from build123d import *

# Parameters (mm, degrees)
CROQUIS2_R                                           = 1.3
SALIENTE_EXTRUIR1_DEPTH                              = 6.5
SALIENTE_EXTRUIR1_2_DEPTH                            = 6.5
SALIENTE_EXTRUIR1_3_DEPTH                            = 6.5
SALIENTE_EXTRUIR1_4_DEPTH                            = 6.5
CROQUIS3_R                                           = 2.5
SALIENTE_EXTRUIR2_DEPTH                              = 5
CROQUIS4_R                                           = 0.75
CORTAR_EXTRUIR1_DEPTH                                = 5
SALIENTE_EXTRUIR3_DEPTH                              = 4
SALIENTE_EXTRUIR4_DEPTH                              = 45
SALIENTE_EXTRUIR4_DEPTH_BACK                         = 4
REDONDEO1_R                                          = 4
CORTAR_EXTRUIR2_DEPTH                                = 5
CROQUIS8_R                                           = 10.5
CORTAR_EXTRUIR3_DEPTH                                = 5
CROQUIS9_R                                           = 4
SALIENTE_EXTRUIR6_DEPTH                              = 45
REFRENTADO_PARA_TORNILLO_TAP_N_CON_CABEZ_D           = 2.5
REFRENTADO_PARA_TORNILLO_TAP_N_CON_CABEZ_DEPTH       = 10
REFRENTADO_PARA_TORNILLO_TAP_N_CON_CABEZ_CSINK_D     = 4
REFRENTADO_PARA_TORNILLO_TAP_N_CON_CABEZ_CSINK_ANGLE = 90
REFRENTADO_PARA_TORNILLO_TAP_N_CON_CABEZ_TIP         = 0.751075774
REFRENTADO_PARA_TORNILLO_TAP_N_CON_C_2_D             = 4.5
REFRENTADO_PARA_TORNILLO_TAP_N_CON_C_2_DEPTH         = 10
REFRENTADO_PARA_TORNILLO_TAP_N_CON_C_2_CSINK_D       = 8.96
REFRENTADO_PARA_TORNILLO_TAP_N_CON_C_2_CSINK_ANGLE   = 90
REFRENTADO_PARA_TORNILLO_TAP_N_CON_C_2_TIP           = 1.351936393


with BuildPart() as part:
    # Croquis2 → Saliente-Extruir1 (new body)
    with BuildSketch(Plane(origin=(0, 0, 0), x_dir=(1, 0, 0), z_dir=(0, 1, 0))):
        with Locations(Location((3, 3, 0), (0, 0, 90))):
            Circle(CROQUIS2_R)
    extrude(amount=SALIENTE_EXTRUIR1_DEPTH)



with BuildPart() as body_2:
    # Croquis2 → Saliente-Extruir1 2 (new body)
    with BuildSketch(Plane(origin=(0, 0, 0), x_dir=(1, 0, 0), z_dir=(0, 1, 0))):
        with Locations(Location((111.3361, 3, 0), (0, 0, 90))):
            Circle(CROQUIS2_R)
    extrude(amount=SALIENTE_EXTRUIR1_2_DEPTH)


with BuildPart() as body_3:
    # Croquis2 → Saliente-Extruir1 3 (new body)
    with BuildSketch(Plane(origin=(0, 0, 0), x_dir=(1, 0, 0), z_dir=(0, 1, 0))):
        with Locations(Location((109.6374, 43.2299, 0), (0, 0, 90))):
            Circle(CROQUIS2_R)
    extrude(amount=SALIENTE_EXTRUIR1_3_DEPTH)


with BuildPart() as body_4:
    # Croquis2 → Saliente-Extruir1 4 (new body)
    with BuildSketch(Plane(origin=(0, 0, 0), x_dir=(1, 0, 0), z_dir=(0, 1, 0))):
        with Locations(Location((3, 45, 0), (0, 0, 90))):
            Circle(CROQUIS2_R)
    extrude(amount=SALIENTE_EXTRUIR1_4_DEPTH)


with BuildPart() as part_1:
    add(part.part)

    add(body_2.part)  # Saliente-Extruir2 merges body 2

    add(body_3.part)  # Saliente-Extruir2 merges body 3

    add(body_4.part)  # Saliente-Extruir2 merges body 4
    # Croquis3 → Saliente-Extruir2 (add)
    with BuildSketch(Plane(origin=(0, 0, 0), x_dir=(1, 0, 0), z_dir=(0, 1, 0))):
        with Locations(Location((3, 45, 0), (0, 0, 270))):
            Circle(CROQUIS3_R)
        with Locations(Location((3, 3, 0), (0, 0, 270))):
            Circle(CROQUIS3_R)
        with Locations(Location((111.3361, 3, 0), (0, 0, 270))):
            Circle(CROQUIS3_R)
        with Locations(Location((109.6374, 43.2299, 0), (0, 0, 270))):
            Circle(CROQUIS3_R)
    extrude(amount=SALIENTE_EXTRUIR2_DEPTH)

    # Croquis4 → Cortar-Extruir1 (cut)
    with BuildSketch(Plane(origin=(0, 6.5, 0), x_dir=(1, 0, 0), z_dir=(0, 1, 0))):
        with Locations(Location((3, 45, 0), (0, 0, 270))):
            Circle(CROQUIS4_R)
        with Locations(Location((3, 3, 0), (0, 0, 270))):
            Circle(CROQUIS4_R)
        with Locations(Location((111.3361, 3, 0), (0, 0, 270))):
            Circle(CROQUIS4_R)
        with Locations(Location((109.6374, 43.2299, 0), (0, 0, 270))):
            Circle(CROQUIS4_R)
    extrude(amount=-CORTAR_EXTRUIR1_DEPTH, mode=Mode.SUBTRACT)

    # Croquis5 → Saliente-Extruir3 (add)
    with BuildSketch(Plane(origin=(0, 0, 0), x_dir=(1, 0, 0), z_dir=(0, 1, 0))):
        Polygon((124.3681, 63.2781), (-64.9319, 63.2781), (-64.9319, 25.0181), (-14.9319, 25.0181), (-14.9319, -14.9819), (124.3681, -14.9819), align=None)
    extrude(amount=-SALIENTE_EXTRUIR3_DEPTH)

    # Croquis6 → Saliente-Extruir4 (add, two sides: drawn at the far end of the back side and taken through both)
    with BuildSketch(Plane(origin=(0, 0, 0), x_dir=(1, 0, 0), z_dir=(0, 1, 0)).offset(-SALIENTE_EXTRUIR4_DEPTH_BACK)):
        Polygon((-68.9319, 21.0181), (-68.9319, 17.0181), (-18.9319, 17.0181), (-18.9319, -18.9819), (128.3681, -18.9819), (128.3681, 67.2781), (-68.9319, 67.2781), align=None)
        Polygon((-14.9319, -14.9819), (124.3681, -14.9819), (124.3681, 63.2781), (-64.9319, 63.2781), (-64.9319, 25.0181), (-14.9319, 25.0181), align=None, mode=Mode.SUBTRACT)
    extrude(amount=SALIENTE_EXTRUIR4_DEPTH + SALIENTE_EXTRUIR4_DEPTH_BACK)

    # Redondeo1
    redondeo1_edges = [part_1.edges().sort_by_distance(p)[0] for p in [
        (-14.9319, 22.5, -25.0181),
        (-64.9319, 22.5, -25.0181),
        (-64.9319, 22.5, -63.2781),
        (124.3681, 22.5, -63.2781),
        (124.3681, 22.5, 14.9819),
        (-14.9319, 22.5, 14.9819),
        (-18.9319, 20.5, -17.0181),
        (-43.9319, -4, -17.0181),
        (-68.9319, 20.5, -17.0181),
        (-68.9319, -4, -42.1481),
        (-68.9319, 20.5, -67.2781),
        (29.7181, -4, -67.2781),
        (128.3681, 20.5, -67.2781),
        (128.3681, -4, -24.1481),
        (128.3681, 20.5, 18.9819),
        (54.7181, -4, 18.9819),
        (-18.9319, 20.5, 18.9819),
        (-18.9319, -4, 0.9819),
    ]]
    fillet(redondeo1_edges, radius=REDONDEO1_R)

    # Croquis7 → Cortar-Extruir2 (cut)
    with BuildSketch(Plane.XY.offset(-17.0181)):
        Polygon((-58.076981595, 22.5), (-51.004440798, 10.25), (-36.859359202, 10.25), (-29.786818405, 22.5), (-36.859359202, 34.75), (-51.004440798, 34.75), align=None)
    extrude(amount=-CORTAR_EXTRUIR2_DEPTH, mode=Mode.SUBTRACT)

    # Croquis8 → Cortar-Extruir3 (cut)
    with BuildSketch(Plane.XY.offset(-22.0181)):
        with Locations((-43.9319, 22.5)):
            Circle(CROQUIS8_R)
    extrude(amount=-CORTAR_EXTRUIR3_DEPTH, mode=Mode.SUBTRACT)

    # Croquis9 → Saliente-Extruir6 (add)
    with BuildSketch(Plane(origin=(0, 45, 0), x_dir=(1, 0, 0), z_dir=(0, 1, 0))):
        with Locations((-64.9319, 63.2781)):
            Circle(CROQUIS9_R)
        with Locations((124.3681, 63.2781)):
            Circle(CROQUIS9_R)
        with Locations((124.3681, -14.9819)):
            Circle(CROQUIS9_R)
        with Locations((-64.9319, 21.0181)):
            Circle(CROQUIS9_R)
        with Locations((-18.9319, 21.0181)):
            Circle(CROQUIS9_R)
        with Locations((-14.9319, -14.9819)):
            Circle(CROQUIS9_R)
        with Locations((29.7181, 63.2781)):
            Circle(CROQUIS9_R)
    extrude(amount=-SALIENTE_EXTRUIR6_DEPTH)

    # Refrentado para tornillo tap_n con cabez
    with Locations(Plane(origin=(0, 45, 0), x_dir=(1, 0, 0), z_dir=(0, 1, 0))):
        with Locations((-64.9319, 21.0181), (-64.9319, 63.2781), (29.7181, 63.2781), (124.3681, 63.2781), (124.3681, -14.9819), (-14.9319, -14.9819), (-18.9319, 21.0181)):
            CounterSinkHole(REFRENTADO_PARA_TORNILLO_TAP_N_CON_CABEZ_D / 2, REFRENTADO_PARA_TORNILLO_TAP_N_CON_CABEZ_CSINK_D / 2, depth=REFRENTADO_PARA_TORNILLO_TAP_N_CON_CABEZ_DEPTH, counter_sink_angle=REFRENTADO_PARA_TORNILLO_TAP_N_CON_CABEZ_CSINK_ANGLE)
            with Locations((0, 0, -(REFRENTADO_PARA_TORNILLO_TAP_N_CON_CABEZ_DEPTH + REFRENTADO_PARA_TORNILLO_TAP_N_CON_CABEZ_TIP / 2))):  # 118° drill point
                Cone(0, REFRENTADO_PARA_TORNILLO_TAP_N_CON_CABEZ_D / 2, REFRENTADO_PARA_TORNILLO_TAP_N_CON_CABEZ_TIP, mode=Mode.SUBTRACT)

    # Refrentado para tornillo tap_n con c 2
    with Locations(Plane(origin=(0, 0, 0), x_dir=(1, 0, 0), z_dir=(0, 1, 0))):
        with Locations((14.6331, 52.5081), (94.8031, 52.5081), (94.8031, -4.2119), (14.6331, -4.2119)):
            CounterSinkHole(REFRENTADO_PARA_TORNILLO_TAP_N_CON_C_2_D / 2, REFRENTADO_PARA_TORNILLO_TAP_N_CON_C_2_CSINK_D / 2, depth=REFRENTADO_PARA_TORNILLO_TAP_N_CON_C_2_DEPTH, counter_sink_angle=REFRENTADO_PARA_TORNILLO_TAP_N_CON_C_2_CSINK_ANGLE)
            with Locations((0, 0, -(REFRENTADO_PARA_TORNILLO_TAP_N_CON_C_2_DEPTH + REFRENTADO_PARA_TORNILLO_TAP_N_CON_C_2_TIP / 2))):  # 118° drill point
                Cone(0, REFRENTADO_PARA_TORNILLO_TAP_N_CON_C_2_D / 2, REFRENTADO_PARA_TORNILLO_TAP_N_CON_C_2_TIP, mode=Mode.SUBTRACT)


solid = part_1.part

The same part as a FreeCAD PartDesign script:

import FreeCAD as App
import Part
import Sketcher

V = App.Vector
Q = App.Units.Quantity


def edges_at(feature, points):
    """Names of the edges that pass closest to the given points."""
    edges = feature.Shape.Edges
    near = lambda p: min(range(len(edges)), key=lambda i: edges[i].distToShape(Part.Vertex(*p))[0])
    return sorted({f"Edge{near(p) + 1}" for p in points})


def add_polygon(sketch, points):
    """Adds a closed chain of lines whose ends are joined by coincident constraints."""
    first, n = sketch.GeometryCount, len(points)
    for a, b in zip(points, points[1:] + points[:1]):
        sketch.addGeometry(Part.LineSegment(App.Vector(*a, 0), App.Vector(*b, 0)), False)
    for i in range(n):
        sketch.addConstraint(Sketcher.Constraint("Coincident", first + i, 2, first + (i + 1) % n, 1))

doc = App.newDocument("Part")
body = doc.addObject("PartDesign::Body", "Body")

sketch1 = body.newObject("Sketcher::SketchObject", "Sketch")
sketch1.AttachmentSupport = (doc.getObject("XZ_Plane"), [""])
sketch1.MapMode = "FlatFace"
sketch1.addGeometry(Part.Circle(V(3, -3, 0), V(0, 0, 1), 1.3), False)
sketch1.addConstraint([
    Sketcher.Constraint("Diameter", 0, 2.6),
    Sketcher.Constraint("DistanceX", -1, 1, 0, 3, 3.0),
    Sketcher.Constraint("DistanceY", 0, 3, -1, 1, 3.0),
])
pad1 = body.newObject("PartDesign::Pad", "Pad")
pad1.Profile = sketch1
pad1.Length = 6.5
pad1.Reversed = True
body2 = doc.addObject("PartDesign::Body", "Body001")

sketch2 = body2.newObject("Sketcher::SketchObject", "Sketch001")
sketch2.AttachmentSupport = (doc.getObject("XZ_Plane001"), [""])
sketch2.MapMode = "FlatFace"
sketch2.addGeometry(Part.Circle(V(111.3361, -3, 0), V(0, 0, 1), 1.3), False)
sketch2.addConstraint([
    Sketcher.Constraint("Diameter", 0, 2.6),
    Sketcher.Constraint("DistanceY", 0, 3, -1, 1, 3.0),
    Sketcher.Constraint("DistanceX", -1, 1, 0, 3, 111.3361),
])
pad2 = body2.newObject("PartDesign::Pad", "Pad001")
pad2.Profile = sketch2
pad2.Length = 6.5
pad2.Reversed = True
body3 = doc.addObject("PartDesign::Body", "Body002")

sketch3 = body3.newObject("Sketcher::SketchObject", "Sketch002")
sketch3.AttachmentSupport = (doc.getObject("XZ_Plane002"), [""])
sketch3.MapMode = "FlatFace"
sketch3.addGeometry(Part.Circle(V(109.6374, -43.2299, 0), V(0, 0, 1), 1.3), False)
sketch3.addConstraint([
    Sketcher.Constraint("Diameter", 0, 2.6),
    Sketcher.Constraint("DistanceX", -1, 1, 0, 3, 109.6374),
    Sketcher.Constraint("DistanceY", 0, 3, -1, 1, 43.2299),
])
pad3 = body3.newObject("PartDesign::Pad", "Pad002")
pad3.Profile = sketch3
pad3.Length = 6.5
pad3.Reversed = True
body4 = doc.addObject("PartDesign::Body", "Body003")

sketch4 = body4.newObject("Sketcher::SketchObject", "Sketch003")
sketch4.AttachmentSupport = (doc.getObject("XZ_Plane003"), [""])
sketch4.MapMode = "FlatFace"
sketch4.addGeometry(Part.Circle(V(3, -45, 0), V(0, 0, 1), 1.3), False)
sketch4.addConstraint([
    Sketcher.Constraint("Diameter", 0, 2.6),
    Sketcher.Constraint("DistanceX", -1, 1, 0, 3, 3.0),
    Sketcher.Constraint("DistanceY", 0, 3, -1, 1, 45.0),
])
pad4 = body4.newObject("PartDesign::Pad", "Pad003")
pad4.Profile = sketch4
pad4.Length = 6.5
pad4.Reversed = True
body.AllowCompound = True
doc.recompute()

boolean = body.newObject("PartDesign::Boolean", "Boolean")
boolean.Type = "Fuse"
boolean.addObjects([body2])
doc.recompute()

boolean2 = body.newObject("PartDesign::Boolean", "Boolean001")
boolean2.Type = "Fuse"
boolean2.addObjects([body3])
doc.recompute()

boolean3 = body.newObject("PartDesign::Boolean", "Boolean002")
boolean3.Type = "Fuse"
boolean3.addObjects([body4])

sketch5 = body.newObject("Sketcher::SketchObject", "Sketch004")
sketch5.AttachmentSupport = (doc.getObject("XZ_Plane"), [""])
sketch5.MapMode = "FlatFace"
sketch5.addGeometry([
    Part.Circle(V(3, -45, 0), V(0, 0, 1), 2.5),
    Part.Circle(V(3, -3, 0), V(0, 0, 1), 2.5),
    Part.Circle(V(111.3361, -3, 0), V(0, 0, 1), 2.5),
    Part.Circle(V(109.6374, -43.2299, 0), V(0, 0, 1), 2.5),
], False)
sketch5.addConstraint([
    Sketcher.Constraint("Equal", 0, 1),
    Sketcher.Constraint("Equal", 1, 2),
    Sketcher.Constraint("Equal", 2, 3),
    Sketcher.Constraint("Horizontal", 1, 3, 2, 3),
    Sketcher.Constraint("Vertical", 0, 3, 1, 3),
    Sketcher.Constraint("Diameter", 0, 5.0),
    Sketcher.Constraint("DistanceX", -1, 1, 0, 3, 3.0),
    Sketcher.Constraint("DistanceY", 0, 3, -1, 1, 45.0),
    Sketcher.Constraint("DistanceY", 1, 3, -1, 1, 3.0),
    Sketcher.Constraint("DistanceX", -1, 1, 2, 3, 111.3361),
    Sketcher.Constraint("DistanceX", -1, 1, 3, 3, 109.6374),
    Sketcher.Constraint("DistanceY", 3, 3, -1, 1, 43.2299),
])
pad5 = body.newObject("PartDesign::Pad", "Pad004")
pad5.Profile = sketch5
pad5.Length = 5
pad5.Reversed = True

sketch6 = body.newObject("Sketcher::SketchObject", "Sketch005")
sketch6.AttachmentSupport = (doc.getObject("XZ_Plane"), [""])
sketch6.MapMode = "FlatFace"
sketch6.AttachmentOffset = App.Placement(V(0, 0, -6.5), App.Rotation())
sketch6.addGeometry([
    Part.Circle(V(3, -45, 0), V(0, 0, 1), 0.75),
    Part.Circle(V(3, -3, 0), V(0, 0, 1), 0.75),
    Part.Circle(V(111.3361, -3, 0), V(0, 0, 1), 0.75),
    Part.Circle(V(109.6374, -43.2299, 0), V(0, 0, 1), 0.75),
], False)
sketch6.addConstraint([
    Sketcher.Constraint("Equal", 0, 1),
    Sketcher.Constraint("Equal", 1, 2),
    Sketcher.Constraint("Equal", 2, 3),
    Sketcher.Constraint("Horizontal", 1, 3, 2, 3),
    Sketcher.Constraint("Vertical", 0, 3, 1, 3),
    Sketcher.Constraint("Diameter", 0, 1.5),
    Sketcher.Constraint("DistanceX", -1, 1, 0, 3, 3.0),
    Sketcher.Constraint("DistanceY", 0, 3, -1, 1, 45.0),
    Sketcher.Constraint("DistanceY", 1, 3, -1, 1, 3.0),
    Sketcher.Constraint("DistanceX", -1, 1, 2, 3, 111.3361),
    Sketcher.Constraint("DistanceX", -1, 1, 3, 3, 109.6374),
    Sketcher.Constraint("DistanceY", 3, 3, -1, 1, 43.2299),
])
pocket1 = body.newObject("PartDesign::Pocket", "Pocket")
pocket1.Profile = sketch6
pocket1.Length = 5
pocket1.Reversed = True

sketch7 = body.newObject("Sketcher::SketchObject", "Sketch006")
sketch7.AttachmentSupport = (doc.getObject("XZ_Plane"), [""])
sketch7.MapMode = "FlatFace"
add_polygon(sketch7, [(124.3681, -63.2781), (-64.9319, -63.2781), (-64.9319, -25.0181), (-14.9319, -25.0181), (-14.9319, 14.9819), (124.3681, 14.9819)])
sketch7.addConstraint([
    Sketcher.Constraint("Horizontal", 0),
    Sketcher.Constraint("Vertical", 1),
    Sketcher.Constraint("Horizontal", 2),
    Sketcher.Constraint("Vertical", 3),
    Sketcher.Constraint("Horizontal", 4),
    Sketcher.Constraint("Vertical", 5),
    Sketcher.Constraint("DistanceX", 2, 1, 2, 2, 50.0),
    Sketcher.Constraint("DistanceY", 3, 1, 3, 2, 40.0),
    Sketcher.Constraint("DistanceX", 0, 2, 0, 1, 189.3),
    Sketcher.Constraint("DistanceY", 1, 1, 1, 2, 38.26),
    Sketcher.Constraint("DistanceX", 0, 2, -1, 1, 64.9319),
    Sketcher.Constraint("DistanceY", 0, 2, -1, 1, 63.2781),
])
pad6 = body.newObject("PartDesign::Pad", "Pad005")
pad6.Profile = sketch7
pad6.Length = 4

sketch8 = body.newObject("Sketcher::SketchObject", "Sketch007")
sketch8.AttachmentSupport = (doc.getObject("XZ_Plane"), [""])
sketch8.MapMode = "FlatFace"
add_polygon(sketch8, [(-68.9319, -17.0181), (-18.9319, -17.0181), (-18.9319, 18.9819), (128.3681, 18.9819), (128.3681, -67.2781), (-68.9319, -67.2781)])
add_polygon(sketch8, [(124.3681, 14.9819), (-14.9319, 14.9819), (-14.9319, -25.0181), (-64.9319, -25.0181), (-64.9319, -63.2781), (124.3681, -63.2781)])
sketch8.addConstraint([
    Sketcher.Constraint("Horizontal", 0),
    Sketcher.Constraint("Vertical", 1),
    Sketcher.Constraint("Horizontal", 2),
    Sketcher.Constraint("Vertical", 3),
    Sketcher.Constraint("Horizontal", 4),
    Sketcher.Constraint("Vertical", 5),
    Sketcher.Constraint("Horizontal", 6),
    Sketcher.Constraint("Vertical", 7),
    Sketcher.Constraint("Horizontal", 8),
    Sketcher.Constraint("Vertical", 9),
    Sketcher.Constraint("Horizontal", 10),
    Sketcher.Constraint("Vertical", 11),
    Sketcher.Constraint("Equal", 0, 8),
    Sketcher.Constraint("DistanceX", 0, 1, 0, 2, 50.0),
    Sketcher.Constraint("DistanceY", 1, 1, 1, 2, 36.0),
    Sketcher.Constraint("DistanceY", 7, 2, 7, 1, 40.0),
    Sketcher.Constraint("DistanceX", 2, 1, 2, 2, 147.3),
    Sketcher.Constraint("DistanceX", 6, 2, 6, 1, 139.3),
    Sketcher.Constraint("DistanceX", 1, 2, 6, 2, 4.0),
    Sketcher.Constraint("DistanceY", 6, 2, 1, 2, 4.0),
    Sketcher.Constraint("DistanceY", 4, 2, 9, 2, 4.0),
    Sketcher.Constraint("DistanceY", 3, 2, 3, 1, 86.26),
    Sketcher.Constraint("DistanceX", 0, 2, -1, 1, 18.9319),
    Sketcher.Constraint("DistanceY", 0, 2, -1, 1, 17.0181),
])
pad7 = body.newObject("PartDesign::Pad", "Pad006")
pad7.Profile = sketch8
pad7.Type = "TwoLengths"
pad7.Length = 45
pad7.Length2 = 4
pad7.Reversed = True
doc.recompute()

fillet = body.newObject("PartDesign::Fillet", "Fillet")
fillet.Base = (pad7, edges_at(pad7, [
    (-14.932, 22.5, -25.018),
    (-64.932, 22.5, -25.018),
    (-64.932, 22.5, -63.278),
    (124.368, 22.5, -63.278),
    (124.368, 22.5, 14.982),
    (-14.932, 22.5, 14.982),
    (-18.932, 20.5, -17.018),
    (-43.932, -4, -17.018),
    (-68.932, 20.5, -17.018),
    (-68.932, -4, -42.148),
    (-68.932, 20.5, -67.278),
    (29.718, -4, -67.278),
    (128.368, 20.5, -67.278),
    (128.368, -4, -24.148),
    (128.368, 20.5, 18.982),
    (54.718, -4, 18.982),
    (-18.932, 20.5, 18.982),
    (-18.932, -4, 0.982),
]))
fillet.Radius = 4

sketch9 = body.newObject("Sketcher::SketchObject", "Sketch008")
sketch9.AttachmentSupport = (doc.getObject("XY_Plane"), [""])
sketch9.MapMode = "FlatFace"
sketch9.AttachmentOffset = App.Placement(V(0, 0, -17.0181), App.Rotation())
add_polygon(sketch9, [(-58.076982, 22.5), (-51.004441, 10.25), (-36.859359, 10.25), (-29.786818, 22.5), (-36.859359, 34.75), (-51.004441, 34.75)])
sketch9.addConstraint([
    Sketcher.Constraint("Horizontal", 1),
    Sketcher.Constraint("Horizontal", 4),
    Sketcher.Constraint("Parallel", 0, 3),
    Sketcher.Constraint("Parallel", 2, 5),
    Sketcher.Constraint("Horizontal", 2, 2, 5, 2),
    Sketcher.Constraint("Vertical", 1, 2, 3, 2),
    Sketcher.Constraint("Vertical", 0, 2, 4, 2),
    Sketcher.Constraint("Angle", 0, Q("-60 deg")),
    Sketcher.Constraint("DistanceY", -1, 1, 2, 2, 22.5),
    Sketcher.Constraint("DistanceY", 1, 2, 3, 2, 24.5),
    Sketcher.Constraint("DistanceX", 1, 1, 1, 2, 14.145082),
    Sketcher.Constraint("DistanceX", 0, 2, -1, 1, 51.004441),
])
pocket2 = body.newObject("PartDesign::Pocket", "Pocket001")
pocket2.Profile = sketch9
pocket2.Length = 5

sketch10 = body.newObject("Sketcher::SketchObject", "Sketch009")
sketch10.AttachmentSupport = (doc.getObject("XY_Plane"), [""])
sketch10.MapMode = "FlatFace"
sketch10.AttachmentOffset = App.Placement(V(0, 0, -22.0181), App.Rotation())
sketch10.addGeometry(Part.Circle(V(-43.9319, 22.5, 0), V(0, 0, 1), 10.5), False)
sketch10.addConstraint([
    Sketcher.Constraint("Diameter", 0, 21.0),
    Sketcher.Constraint("DistanceY", -1, 1, 0, 3, 22.5),
    Sketcher.Constraint("DistanceX", 0, 3, -1, 1, 43.9319),
])
pocket3 = body.newObject("PartDesign::Pocket", "Pocket002")
pocket3.Profile = sketch10
pocket3.Length = 5

sketch11 = body.newObject("Sketcher::SketchObject", "Sketch010")
sketch11.AttachmentSupport = (doc.getObject("XZ_Plane"), [""])
sketch11.MapMode = "FlatFace"
sketch11.AttachmentOffset = App.Placement(V(0, 0, -45), App.Rotation())
sketch11.addGeometry([
    Part.Circle(V(-64.9319, -63.2781, 0), V(0, 0, 1), 4),
    Part.Circle(V(124.3681, -63.2781, 0), V(0, 0, 1), 4),
    Part.Circle(V(124.3681, 14.9819, 0), V(0, 0, 1), 4),
    Part.Circle(V(-64.9319, -21.0181, 0), V(0, 0, 1), 4),
    Part.Circle(V(-18.9319, -21.0181, 0), V(0, 0, 1), 4),
    Part.Circle(V(-14.9319, 14.9819, 0), V(0, 0, 1), 4),
    Part.Circle(V(29.7181, -63.2781, 0), V(0, 0, 1), 4),
], False)
sketch11.addConstraint([
    Sketcher.Constraint("Equal", 0, 1),
    Sketcher.Constraint("Equal", 1, 2),
    Sketcher.Constraint("Equal", 2, 3),
    Sketcher.Constraint("Equal", 3, 4),
    Sketcher.Constraint("Equal", 4, 5),
    Sketcher.Constraint("Equal", 5, 6),
    Sketcher.Constraint("Horizontal", 0, 3, 1, 3),
    Sketcher.Constraint("Horizontal", 3, 3, 4, 3),
    Sketcher.Constraint("Horizontal", 2, 3, 5, 3),
    Sketcher.Constraint("Horizontal", 1, 3, 6, 3),
    Sketcher.Constraint("Vertical", 1, 3, 2, 3),
    Sketcher.Constraint("Vertical", 0, 3, 3, 3),
    Sketcher.Constraint("Diameter", 0, 8.0),
    Sketcher.Constraint("DistanceY", 3, 3, 2, 3, 36.0),
    Sketcher.Constraint("DistanceX", 3, 3, 4, 3, 46.0),
    Sketcher.Constraint("DistanceX", 4, 3, 5, 3, 4.0),
    Sketcher.Constraint("DistanceX", 0, 3, 1, 3, 189.3),
    Sketcher.Constraint("DistanceY", 1, 3, 2, 3, 78.26),
    Sketcher.Constraint("DistanceX", 4, 3, 6, 3, 48.65),
    Sketcher.Constraint("DistanceX", 0, 3, -1, 1, 64.9319),
    Sketcher.Constraint("DistanceY", 0, 3, -1, 1, 63.2781),
])
pad8 = body.newObject("PartDesign::Pad", "Pad007")
pad8.Profile = sketch11
pad8.Length = 45

sketch12 = body.newObject("Sketcher::SketchObject", "Sketch011")
sketch12.AttachmentSupport = (doc.getObject("XZ_Plane"), [""])
sketch12.MapMode = "FlatFace"
sketch12.AttachmentOffset = App.Placement(V(0, 0, -45), App.Rotation())
sketch12.addGeometry([
    Part.Circle(V(-64.9319, -21.0181, 0), V(0, 0, 1), 1.25),
    Part.Circle(V(-64.9319, -63.2781, 0), V(0, 0, 1), 1.25),
    Part.Circle(V(29.7181, -63.2781, 0), V(0, 0, 1), 1.25),
    Part.Circle(V(124.3681, -63.2781, 0), V(0, 0, 1), 1.25),
    Part.Circle(V(124.3681, 14.9819, 0), V(0, 0, 1), 1.25),
    Part.Circle(V(-14.9319, 14.9819, 0), V(0, 0, 1), 1.25),
    Part.Circle(V(-18.9319, -21.0181, 0), V(0, 0, 1), 1.25),
], False)
sketch12.addConstraint([
    Sketcher.Constraint("Equal", 0, 1),
    Sketcher.Constraint("Equal", 1, 2),
    Sketcher.Constraint("Equal", 2, 3),
    Sketcher.Constraint("Equal", 3, 4),
    Sketcher.Constraint("Equal", 4, 5),
    Sketcher.Constraint("Equal", 5, 6),
    Sketcher.Constraint("Horizontal", 1, 3, 2, 3),
    Sketcher.Constraint("Horizontal", 2, 3, 3, 3),
    Sketcher.Constraint("Horizontal", 4, 3, 5, 3),
    Sketcher.Constraint("Horizontal", 0, 3, 6, 3),
    Sketcher.Constraint("Vertical", 0, 3, 1, 3),
    Sketcher.Constraint("Vertical", 3, 3, 4, 3),
    Sketcher.Constraint("Diameter", 0, 2.5),
    Sketcher.Constraint("DistanceY", 0, 3, 4, 3, 36.0),
    Sketcher.Constraint("DistanceX", 0, 3, 5, 3, 50.0),
    Sketcher.Constraint("DistanceX", 6, 3, 5, 3, 4.0),
    Sketcher.Constraint("DistanceX", 1, 3, 3, 3, 189.3),
    Sketcher.Constraint("DistanceY", 1, 3, 0, 3, 42.26),
    Sketcher.Constraint("DistanceX", 1, 3, 2, 3, 94.65),
    Sketcher.Constraint("DistanceX", 0, 3, -1, 1, 64.9319),
    Sketcher.Constraint("DistanceY", 0, 3, -1, 1, 21.0181),
])
doc.recompute()
hole = body.newObject("PartDesign::Hole", "Hole")
hole.Profile = sketch12
hole.ThreadType = "None"
hole.Diameter = 2.5
hole.DepthType = "Dimension"
hole.Depth = 10
hole.DrillPoint = "Angled"
hole.DrillPointAngle = 118
hole.HoleCutType = "Countersink"
hole.HoleCutDiameter = 4
hole.HoleCutCountersinkAngle = 90
hole.Reversed = True

sketch13 = body.newObject("Sketcher::SketchObject", "Sketch012")
sketch13.AttachmentSupport = (doc.getObject("XZ_Plane"), [""])
sketch13.MapMode = "FlatFace"
sketch13.addGeometry([
    Part.Circle(V(14.6331, -52.5081, 0), V(0, 0, 1), 2.25),
    Part.Circle(V(94.8031, -52.5081, 0), V(0, 0, 1), 2.25),
    Part.Circle(V(94.8031, 4.2119, 0), V(0, 0, 1), 2.25),
    Part.Circle(V(14.6331, 4.2119, 0), V(0, 0, 1), 2.25),
], False)
sketch13.addConstraint([
    Sketcher.Constraint("Equal", 0, 1),
    Sketcher.Constraint("Equal", 1, 2),
    Sketcher.Constraint("Equal", 2, 3),
    Sketcher.Constraint("Horizontal", 0, 3, 1, 3),
    Sketcher.Constraint("Horizontal", 2, 3, 3, 3),
    Sketcher.Constraint("Vertical", 1, 3, 2, 3),
    Sketcher.Constraint("Vertical", 0, 3, 3, 3),
    Sketcher.Constraint("Diameter", 0, 4.5),
    Sketcher.Constraint("DistanceX", 0, 3, 1, 3, 80.17),
    Sketcher.Constraint("DistanceY", 1, 3, 2, 3, 56.72),
    Sketcher.Constraint("DistanceX", -1, 1, 0, 3, 14.6331),
    Sketcher.Constraint("DistanceY", 0, 3, -1, 1, 52.5081),
])
doc.recompute()
hole2 = body.newObject("PartDesign::Hole", "Hole001")
hole2.Profile = sketch13
hole2.ThreadType = "None"
hole2.Diameter = 4.5
hole2.DepthType = "Dimension"
hole2.Depth = 10
hole2.DrillPoint = "Angled"
hole2.DrillPointAngle = 118
hole2.HoleCutType = "Countersink"
hole2.HoleCutDiameter = 8.96
hole2.HoleCutCountersinkAngle = 90
hole2.Reversed = True

doc.recompute()
